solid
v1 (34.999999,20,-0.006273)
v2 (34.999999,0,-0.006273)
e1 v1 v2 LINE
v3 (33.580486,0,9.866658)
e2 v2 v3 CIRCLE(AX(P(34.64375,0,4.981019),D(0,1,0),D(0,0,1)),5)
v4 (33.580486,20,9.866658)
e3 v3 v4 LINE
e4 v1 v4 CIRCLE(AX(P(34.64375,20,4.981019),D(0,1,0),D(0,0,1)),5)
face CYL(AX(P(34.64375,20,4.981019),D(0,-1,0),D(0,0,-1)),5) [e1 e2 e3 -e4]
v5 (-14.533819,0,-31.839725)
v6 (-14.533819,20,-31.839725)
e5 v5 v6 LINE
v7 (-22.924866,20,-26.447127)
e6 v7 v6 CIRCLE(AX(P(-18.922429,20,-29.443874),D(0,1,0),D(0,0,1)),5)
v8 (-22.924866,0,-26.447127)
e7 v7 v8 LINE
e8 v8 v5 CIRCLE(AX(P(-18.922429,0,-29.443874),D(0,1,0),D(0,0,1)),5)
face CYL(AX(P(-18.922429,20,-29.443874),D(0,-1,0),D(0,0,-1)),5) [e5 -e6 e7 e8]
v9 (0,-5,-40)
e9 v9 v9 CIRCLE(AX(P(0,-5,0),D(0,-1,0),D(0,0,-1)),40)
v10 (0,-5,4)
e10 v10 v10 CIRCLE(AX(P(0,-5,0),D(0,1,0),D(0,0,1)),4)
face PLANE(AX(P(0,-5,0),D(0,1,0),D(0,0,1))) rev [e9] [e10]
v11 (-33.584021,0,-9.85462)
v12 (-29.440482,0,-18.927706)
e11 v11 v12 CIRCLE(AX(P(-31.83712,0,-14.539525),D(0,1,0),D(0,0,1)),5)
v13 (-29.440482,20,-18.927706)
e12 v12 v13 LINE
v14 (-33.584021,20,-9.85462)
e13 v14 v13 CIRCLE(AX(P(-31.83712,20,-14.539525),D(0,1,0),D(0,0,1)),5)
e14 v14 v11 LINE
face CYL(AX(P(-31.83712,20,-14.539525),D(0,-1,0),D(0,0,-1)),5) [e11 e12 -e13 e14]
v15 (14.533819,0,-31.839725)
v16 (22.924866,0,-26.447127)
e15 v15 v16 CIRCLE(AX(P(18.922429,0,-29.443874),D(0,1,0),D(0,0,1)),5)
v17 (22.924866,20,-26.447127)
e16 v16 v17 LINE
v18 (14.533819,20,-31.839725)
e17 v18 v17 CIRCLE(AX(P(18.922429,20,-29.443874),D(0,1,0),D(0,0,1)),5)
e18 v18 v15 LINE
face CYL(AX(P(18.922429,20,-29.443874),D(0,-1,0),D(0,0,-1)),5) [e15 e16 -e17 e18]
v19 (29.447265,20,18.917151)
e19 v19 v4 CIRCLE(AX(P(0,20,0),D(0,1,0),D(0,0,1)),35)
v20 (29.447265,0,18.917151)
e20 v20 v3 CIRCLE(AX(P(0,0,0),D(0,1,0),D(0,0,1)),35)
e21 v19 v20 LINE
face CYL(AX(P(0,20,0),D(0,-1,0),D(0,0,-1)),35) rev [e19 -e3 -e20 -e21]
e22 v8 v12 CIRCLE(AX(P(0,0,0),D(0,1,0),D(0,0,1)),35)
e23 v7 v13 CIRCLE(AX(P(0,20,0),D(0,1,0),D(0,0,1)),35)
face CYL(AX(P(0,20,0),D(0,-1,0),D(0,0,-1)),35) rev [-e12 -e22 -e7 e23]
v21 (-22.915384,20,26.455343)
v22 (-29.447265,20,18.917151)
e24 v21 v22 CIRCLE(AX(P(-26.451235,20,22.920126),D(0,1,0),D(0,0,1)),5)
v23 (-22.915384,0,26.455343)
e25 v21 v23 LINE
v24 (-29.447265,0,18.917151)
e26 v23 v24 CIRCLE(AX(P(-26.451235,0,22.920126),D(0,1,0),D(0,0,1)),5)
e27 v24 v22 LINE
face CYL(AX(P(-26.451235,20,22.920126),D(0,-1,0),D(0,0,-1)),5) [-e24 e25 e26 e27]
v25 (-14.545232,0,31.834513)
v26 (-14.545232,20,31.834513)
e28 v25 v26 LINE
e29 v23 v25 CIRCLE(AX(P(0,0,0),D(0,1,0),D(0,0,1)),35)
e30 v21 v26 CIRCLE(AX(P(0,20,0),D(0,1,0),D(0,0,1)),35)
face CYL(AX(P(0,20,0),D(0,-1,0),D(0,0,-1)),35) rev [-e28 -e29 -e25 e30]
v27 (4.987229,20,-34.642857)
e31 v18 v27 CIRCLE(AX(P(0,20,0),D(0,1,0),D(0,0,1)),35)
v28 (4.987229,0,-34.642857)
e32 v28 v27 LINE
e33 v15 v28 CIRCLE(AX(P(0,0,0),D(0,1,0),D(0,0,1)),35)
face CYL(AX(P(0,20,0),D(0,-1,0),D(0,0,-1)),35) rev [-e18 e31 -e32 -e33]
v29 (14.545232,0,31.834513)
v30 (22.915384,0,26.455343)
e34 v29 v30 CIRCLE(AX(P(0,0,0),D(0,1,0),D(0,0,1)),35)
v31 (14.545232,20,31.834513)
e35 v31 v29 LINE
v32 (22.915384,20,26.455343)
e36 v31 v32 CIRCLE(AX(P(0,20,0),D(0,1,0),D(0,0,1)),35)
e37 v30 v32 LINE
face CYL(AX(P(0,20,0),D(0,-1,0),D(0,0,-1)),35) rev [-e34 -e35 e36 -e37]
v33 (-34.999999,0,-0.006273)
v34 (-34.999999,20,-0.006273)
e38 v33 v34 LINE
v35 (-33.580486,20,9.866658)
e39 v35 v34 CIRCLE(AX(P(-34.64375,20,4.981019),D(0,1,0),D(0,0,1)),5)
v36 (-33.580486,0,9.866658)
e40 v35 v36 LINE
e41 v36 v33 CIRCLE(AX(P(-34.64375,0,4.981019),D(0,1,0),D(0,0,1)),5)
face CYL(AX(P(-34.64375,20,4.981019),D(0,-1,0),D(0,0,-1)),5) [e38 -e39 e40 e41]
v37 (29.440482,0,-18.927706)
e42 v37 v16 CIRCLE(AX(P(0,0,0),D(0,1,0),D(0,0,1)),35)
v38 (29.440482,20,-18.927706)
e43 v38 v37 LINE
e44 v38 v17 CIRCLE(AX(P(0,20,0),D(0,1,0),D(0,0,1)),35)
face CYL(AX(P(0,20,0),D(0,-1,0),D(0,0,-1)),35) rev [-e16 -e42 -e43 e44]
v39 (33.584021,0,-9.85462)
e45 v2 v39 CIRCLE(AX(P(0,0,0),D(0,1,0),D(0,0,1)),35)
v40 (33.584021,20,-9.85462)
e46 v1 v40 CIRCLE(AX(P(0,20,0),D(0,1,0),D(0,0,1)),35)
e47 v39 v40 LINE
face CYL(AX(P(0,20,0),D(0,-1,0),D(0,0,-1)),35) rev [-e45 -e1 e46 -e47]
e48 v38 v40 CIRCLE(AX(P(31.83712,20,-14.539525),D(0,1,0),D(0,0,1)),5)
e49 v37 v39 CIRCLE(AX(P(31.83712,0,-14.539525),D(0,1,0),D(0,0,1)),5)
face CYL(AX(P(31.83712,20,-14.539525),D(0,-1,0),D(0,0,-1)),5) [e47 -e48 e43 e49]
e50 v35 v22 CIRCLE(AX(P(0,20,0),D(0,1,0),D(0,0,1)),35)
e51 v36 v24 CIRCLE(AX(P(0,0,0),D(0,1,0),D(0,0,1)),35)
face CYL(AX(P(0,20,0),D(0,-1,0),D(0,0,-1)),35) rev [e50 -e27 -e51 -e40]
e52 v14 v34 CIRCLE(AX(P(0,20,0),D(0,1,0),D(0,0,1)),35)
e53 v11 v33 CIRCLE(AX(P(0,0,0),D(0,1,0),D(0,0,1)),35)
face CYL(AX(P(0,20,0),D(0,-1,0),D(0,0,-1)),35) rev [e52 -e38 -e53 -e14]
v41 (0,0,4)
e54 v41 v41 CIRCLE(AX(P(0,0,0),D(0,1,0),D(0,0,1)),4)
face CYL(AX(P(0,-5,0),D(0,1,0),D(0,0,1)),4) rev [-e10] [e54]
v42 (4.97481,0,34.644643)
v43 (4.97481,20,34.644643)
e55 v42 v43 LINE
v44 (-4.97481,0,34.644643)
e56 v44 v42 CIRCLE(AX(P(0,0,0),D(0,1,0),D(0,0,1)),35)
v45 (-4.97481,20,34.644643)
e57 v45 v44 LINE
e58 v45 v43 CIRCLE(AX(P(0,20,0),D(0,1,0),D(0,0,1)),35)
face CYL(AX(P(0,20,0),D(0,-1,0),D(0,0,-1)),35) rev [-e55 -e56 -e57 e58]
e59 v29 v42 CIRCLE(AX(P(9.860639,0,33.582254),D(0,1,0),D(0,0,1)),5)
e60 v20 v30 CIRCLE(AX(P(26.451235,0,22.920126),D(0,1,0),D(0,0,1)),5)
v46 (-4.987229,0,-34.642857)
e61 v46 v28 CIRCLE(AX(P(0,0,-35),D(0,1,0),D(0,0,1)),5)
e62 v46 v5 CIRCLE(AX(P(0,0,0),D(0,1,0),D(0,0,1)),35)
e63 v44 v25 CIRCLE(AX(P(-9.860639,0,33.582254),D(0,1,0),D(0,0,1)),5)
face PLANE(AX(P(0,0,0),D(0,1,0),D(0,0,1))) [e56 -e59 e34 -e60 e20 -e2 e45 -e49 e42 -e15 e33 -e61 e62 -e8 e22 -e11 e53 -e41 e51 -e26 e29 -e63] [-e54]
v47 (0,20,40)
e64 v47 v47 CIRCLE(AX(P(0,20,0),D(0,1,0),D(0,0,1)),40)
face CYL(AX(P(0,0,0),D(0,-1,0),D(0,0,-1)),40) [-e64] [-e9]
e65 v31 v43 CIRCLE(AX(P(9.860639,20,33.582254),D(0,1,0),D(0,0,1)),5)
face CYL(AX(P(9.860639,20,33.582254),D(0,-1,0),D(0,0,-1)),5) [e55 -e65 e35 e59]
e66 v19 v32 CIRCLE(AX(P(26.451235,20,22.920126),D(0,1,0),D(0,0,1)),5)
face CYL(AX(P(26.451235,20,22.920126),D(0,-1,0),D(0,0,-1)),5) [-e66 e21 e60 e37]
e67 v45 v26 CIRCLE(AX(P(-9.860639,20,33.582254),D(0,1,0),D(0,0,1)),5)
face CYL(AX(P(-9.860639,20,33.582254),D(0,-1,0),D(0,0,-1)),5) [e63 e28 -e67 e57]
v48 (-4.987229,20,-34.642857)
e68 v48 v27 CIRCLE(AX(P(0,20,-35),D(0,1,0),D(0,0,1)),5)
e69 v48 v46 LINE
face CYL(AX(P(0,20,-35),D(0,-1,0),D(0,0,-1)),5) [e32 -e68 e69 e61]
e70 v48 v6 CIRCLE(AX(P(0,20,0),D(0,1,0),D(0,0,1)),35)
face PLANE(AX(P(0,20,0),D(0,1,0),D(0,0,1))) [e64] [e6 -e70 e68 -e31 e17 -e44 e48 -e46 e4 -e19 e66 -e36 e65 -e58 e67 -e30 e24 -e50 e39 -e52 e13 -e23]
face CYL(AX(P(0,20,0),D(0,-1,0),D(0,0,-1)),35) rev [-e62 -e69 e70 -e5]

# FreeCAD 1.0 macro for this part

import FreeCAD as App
import Part
import Sketcher
Q = App.Units.Quantity

doc = App.newDocument("Part")
body = doc.addObject("PartDesign::Body", "Body")

# Sketch on XZ plane
sketch1 = body.newObject("Sketcher::SketchObject", "Sketch")
sketch1.AttachmentSupport = (doc.getObject("XZ_Plane"), [""])
sketch1.MapMode = "FlatFace"
sketch1.addGeometry(Part.Circle(App.Vector(0, -35, 0), App.Vector(0, 0, 1), 5), False)
sketch1.addConstraint(Sketcher.Constraint("PointOnObject", 0, 3, -2))
sketch1.addConstraint(Sketcher.Constraint("Diameter", 0, Q("10 mm")))
sketch1.addConstraint(Sketcher.Constraint("DistanceY", 0, 3, -1, 1, Q("35 mm")))
pad1 = body.newObject("PartDesign::Pad", "Pad")
pad1.Profile = sketch1
pad1.Length = 20
pad1.Reversed = True
body2 = doc.addObject("PartDesign::Body", "Body001")

# Sketch on XZ plane
sketch2 = body2.newObject("Sketcher::SketchObject", "Sketch001")
sketch2.AttachmentSupport = (doc.getObject("XZ_Plane001"), [""])
sketch2.MapMode = "FlatFace"
sketch2.addGeometry(Part.Circle(App.Vector(19, -29, 0), App.Vector(0, 0, 1), 5), False)
sketch2.addConstraint(Sketcher.Constraint("Diameter", 0, Q("10 mm")))
sketch2.addConstraint(Sketcher.Constraint("DistanceX", -1, 1, 0, 3, Q("18.922429 mm")))
sketch2.addConstraint(Sketcher.Constraint("DistanceY", 0, 3, -1, 1, Q("29.443874 mm")))
pad2 = body2.newObject("PartDesign::Pad", "Pad001")
pad2.Profile = sketch2
pad2.Length = 20
pad2.Reversed = True
body3 = doc.addObject("PartDesign::Body", "Body002")

# Sketch on XZ plane
sketch3 = body3.newObject("Sketcher::SketchObject", "Sketch002")
sketch3.AttachmentSupport = (doc.getObject("XZ_Plane002"), [""])
sketch3.MapMode = "FlatFace"
sketch3.addGeometry(Part.Circle(App.Vector(32, -15, 0), App.Vector(0, 0, 1), 5), False)
sketch3.addConstraint(Sketcher.Constraint("Diameter", 0, Q("10 mm")))
sketch3.addConstraint(Sketcher.Constraint("DistanceX", -1, 1, 0, 3, Q("31.83712 mm")))
sketch3.addConstraint(Sketcher.Constraint("DistanceY", 0, 3, -1, 1, Q("14.539525 mm")))
pad3 = body3.newObject("PartDesign::Pad", "Pad002")
pad3.Profile = sketch3
pad3.Length = 20
pad3.Reversed = True
body4 = doc.addObject("PartDesign::Body", "Body003")

# Sketch on XZ plane
sketch4 = body4.newObject("Sketcher::SketchObject", "Sketch003")
sketch4.AttachmentSupport = (doc.getObject("XZ_Plane003"), [""])
sketch4.MapMode = "FlatFace"
sketch4.addGeometry(Part.Circle(App.Vector(35, 5, 0), App.Vector(0, 0, 1), 5), False)
sketch4.addConstraint(Sketcher.Constraint("Diameter", 0, Q("10 mm")))
sketch4.addConstraint(Sketcher.Constraint("DistanceX", -1, 1, 0, 3, Q("34.64375 mm")))
sketch4.addConstraint(Sketcher.Constraint("DistanceY", -1, 1, 0, 3, Q("4.981019 mm")))
pad4 = body4.newObject("PartDesign::Pad", "Pad003")
pad4.Profile = sketch4
pad4.Length = 20
pad4.Reversed = True
body5 = doc.addObject("PartDesign::Body", "Body004")

# Sketch on XZ plane
sketch5 = body5.newObject("Sketcher::SketchObject", "Sketch004")
sketch5.AttachmentSupport = (doc.getObject("XZ_Plane004"), [""])
sketch5.MapMode = "FlatFace"
sketch5.addGeometry(Part.Circle(App.Vector(26, 23, 0), App.Vector(0, 0, 1), 5), False)
sketch5.addConstraint(Sketcher.Constraint("Diameter", 0, Q("10 mm")))
sketch5.addConstraint(Sketcher.Constraint("DistanceX", -1, 1, 0, 3, Q("26.451235 mm")))
sketch5.addConstraint(Sketcher.Constraint("DistanceY", -1, 1, 0, 3, Q("22.920126 mm")))
pad5 = body5.newObject("PartDesign::Pad", "Pad004")
pad5.Profile = sketch5
pad5.Length = 20
pad5.Reversed = True
body6 = doc.addObject("PartDesign::Body", "Body005")

# Sketch on XZ plane
sketch6 = body6.newObject("Sketcher::SketchObject", "Sketch005")
sketch6.AttachmentSupport = (doc.getObject("XZ_Plane005"), [""])
sketch6.MapMode = "FlatFace"
sketch6.addGeometry(Part.Circle(App.Vector(10, 34, 0), App.Vector(0, 0, 1), 5), False)
sketch6.addConstraint(Sketcher.Constraint("Diameter", 0, Q("10 mm")))
sketch6.addConstraint(Sketcher.Constraint("DistanceX", -1, 1, 0, 3, Q("9.860639 mm")))
sketch6.addConstraint(Sketcher.Constraint("DistanceY", -1, 1, 0, 3, Q("33.582254 mm")))
pad6 = body6.newObject("PartDesign::Pad", "Pad005")
pad6.Profile = sketch6
pad6.Length = 20
pad6.Reversed = True
body7 = doc.addObject("PartDesign::Body", "Body006")

# Sketch on XZ plane
sketch7 = body7.newObject("Sketcher::SketchObject", "Sketch006")
sketch7.AttachmentSupport = (doc.getObject("XZ_Plane006"), [""])
sketch7.MapMode = "FlatFace"
sketch7.addGeometry(Part.Circle(App.Vector(-10, 34, 0), App.Vector(0, 0, 1), 5), False)
sketch7.addConstraint(Sketcher.Constraint("Diameter", 0, Q("10 mm")))
sketch7.addConstraint(Sketcher.Constraint("DistanceX", 0, 3, -1, 1, Q("9.860639 mm")))
sketch7.addConstraint(Sketcher.Constraint("DistanceY", -1, 1, 0, 3, Q("33.582254 mm")))
pad7 = body7.newObject("PartDesign::Pad", "Pad006")
pad7.Profile = sketch7
pad7.Length = 20
pad7.Reversed = True
body8 = doc.addObject("PartDesign::Body", "Body007")

# Sketch on XZ plane
sketch8 = body8.newObject("Sketcher::SketchObject", "Sketch007")
sketch8.AttachmentSupport = (doc.getObject("XZ_Plane007"), [""])
sketch8.MapMode = "FlatFace"
sketch8.addGeometry(Part.Circle(App.Vector(-26, 23, 0), App.Vector(0, 0, 1), 5), False)
sketch8.addConstraint(Sketcher.Constraint("Diameter", 0, Q("10 mm")))
sketch8.addConstraint(Sketcher.Constraint("DistanceX", 0, 3, -1, 1, Q("26.451235 mm")))
sketch8.addConstraint(Sketcher.Constraint("DistanceY", -1, 1, 0, 3, Q("22.920126 mm")))
pad8 = body8.newObject("PartDesign::Pad", "Pad007")
pad8.Profile = sketch8
pad8.Length = 20
pad8.Reversed = True
body9 = doc.addObject("PartDesign::Body", "Body008")

# Sketch on XZ plane
sketch9 = body9.newObject("Sketcher::SketchObject", "Sketch008")
sketch9.AttachmentSupport = (doc.getObject("XZ_Plane008"), [""])
sketch9.MapMode = "FlatFace"
sketch9.addGeometry(Part.Circle(App.Vector(-35, 5, 0), App.Vector(0, 0, 1), 5), False)
sketch9.addConstraint(Sketcher.Constraint("Diameter", 0, Q("10 mm")))
sketch9.addConstraint(Sketcher.Constraint("DistanceX", 0, 3, -1, 1, Q("34.64375 mm")))
sketch9.addConstraint(Sketcher.Constraint("DistanceY", -1, 1, 0, 3, Q("4.981019 mm")))
pad9 = body9.newObject("PartDesign::Pad", "Pad008")
pad9.Profile = sketch9
pad9.Length = 20
pad9.Reversed = True
body10 = doc.addObject("PartDesign::Body", "Body009")

# Sketch on XZ plane
sketch10 = body10.newObject("Sketcher::SketchObject", "Sketch009")
sketch10.AttachmentSupport = (doc.getObject("XZ_Plane009"), [""])
sketch10.MapMode = "FlatFace"
sketch10.addGeometry(Part.Circle(App.Vector(-32, -15, 0), App.Vector(0, 0, 1), 5), False)
sketch10.addConstraint(Sketcher.Constraint("Diameter", 0, Q("10 mm")))
sketch10.addConstraint(Sketcher.Constraint("DistanceX", 0, 3, -1, 1, Q("31.83712 mm")))
sketch10.addConstraint(Sketcher.Constraint("DistanceY", 0, 3, -1, 1, Q("14.539525 mm")))
pad10 = body10.newObject("PartDesign::Pad", "Pad009")
pad10.Profile = sketch10
pad10.Length = 20
pad10.Reversed = True
body11 = doc.addObject("PartDesign::Body", "Body010")

# Sketch on XZ plane
sketch11 = body11.newObject("Sketcher::SketchObject", "Sketch010")
sketch11.AttachmentSupport = (doc.getObject("XZ_Plane010"), [""])
sketch11.MapMode = "FlatFace"
sketch11.addGeometry(Part.Circle(App.Vector(-19, -29, 0), App.Vector(0, 0, 1), 5), False)
sketch11.addConstraint(Sketcher.Constraint("Diameter", 0, Q("10 mm")))
sketch11.addConstraint(Sketcher.Constraint("DistanceX", 0, 3, -1, 1, Q("18.922429 mm")))
sketch11.addConstraint(Sketcher.Constraint("DistanceY", 0, 3, -1, 1, Q("29.443874 mm")))
pad11 = body11.newObject("PartDesign::Pad", "Pad010")
pad11.Profile = sketch11
pad11.Length = 20
pad11.Reversed = True
body.AllowCompound = True
doc.recompute()

boolean = body.newObject("PartDesign::Boolean", "Boolean")
boolean.Type = "Fuse"
boolean.addObjects([body2])
doc.recompute()

boolean2 = body.newObject("PartDesign::Boolean", "Boolean001")
boolean2.Type = "Fuse"
boolean2.addObjects([body3])
doc.recompute()

boolean3 = body.newObject("PartDesign::Boolean", "Boolean002")
boolean3.Type = "Fuse"
boolean3.addObjects([body4])
doc.recompute()

boolean4 = body.newObject("PartDesign::Boolean", "Boolean003")
boolean4.Type = "Fuse"
boolean4.addObjects([body5])
doc.recompute()

boolean5 = body.newObject("PartDesign::Boolean", "Boolean004")
boolean5.Type = "Fuse"
boolean5.addObjects([body6])
doc.recompute()

boolean6 = body.newObject("PartDesign::Boolean", "Boolean005")
boolean6.Type = "Fuse"
boolean6.addObjects([body7])
doc.recompute()

boolean7 = body.newObject("PartDesign::Boolean", "Boolean006")
boolean7.Type = "Fuse"
boolean7.addObjects([body8])
doc.recompute()

boolean8 = body.newObject("PartDesign::Boolean", "Boolean007")
boolean8.Type = "Fuse"
boolean8.addObjects([body9])
doc.recompute()

boolean9 = body.newObject("PartDesign::Boolean", "Boolean008")
boolean9.Type = "Fuse"
boolean9.addObjects([body10])
doc.recompute()

boolean10 = body.newObject("PartDesign::Boolean", "Boolean009")
boolean10.Type = "Fuse"
boolean10.addObjects([body11])

# Sketch on XZ plane
sketch12 = body.newObject("Sketcher::SketchObject", "Sketch011")
sketch12.AttachmentSupport = (doc.getObject("XZ_Plane"), [""])
sketch12.MapMode = "FlatFace"
sketch12.addGeometry(Part.Circle(App.Vector(0, 0, 0), App.Vector(0, 0, 1), 35), False)
sketch12.addGeometry(Part.Circle(App.Vector(0, 0, 0), App.Vector(0, 0, 1), 4), False)
sketch12.addConstraint(Sketcher.Constraint("Coincident", 0, 3, -1, 1))
sketch12.addConstraint(Sketcher.Constraint("Coincident", 1, 3, -1, 1))
sketch12.addConstraint(Sketcher.Constraint("Diameter", 0, Q("70 mm")))
sketch12.addConstraint(Sketcher.Constraint("Diameter", 1, Q("8 mm")))
pad12 = body.newObject("PartDesign::Pad", "Pad011")
pad12.Profile = sketch12
pad12.Length = 5

# Sketch on XZ plane
sketch13 = body.newObject("Sketcher::SketchObject", "Sketch012")
sketch13.AttachmentSupport = (doc.getObject("XZ_Plane"), [""])
sketch13.MapMode = "FlatFace"
sketch13.AttachmentOffset = App.Placement(App.Vector(0, 0, -20), App.Rotation())
sketch13.addGeometry(Part.LineSegment(App.Vector(-1.1, -36.9, 0), App.Vector(-0.2, -36.9, 0)), False)
sketch13.addGeometry(Part.LineSegment(App.Vector(-0.2, -36.9, 0), App.Vector(-0.2, -35, 0)), False)
sketch13.addGeometry(Part.LineSegment(App.Vector(-0.2, -35, 0), App.Vector(0.2, -35, 0)), False)
sketch13.addGeometry(Part.LineSegment(App.Vector(0.2, -35, 0), App.Vector(0.2, -36.9, 0)), False)
sketch13.addGeometry(Part.LineSegment(App.Vector(0.2, -36.9, 0), App.Vector(1.1, -36.9, 0)), False)
sketch13.addGeometry(Part.LineSegment(App.Vector(1.1, -36.9, 0), App.Vector(0, -38, 0)), False)
sketch13.addGeometry(Part.LineSegment(App.Vector(0, -38, 0), App.Vector(-1.1, -36.9, 0)), False)
sketch13.addConstraint(Sketcher.Constraint("Coincident", 0, 2, 1, 1))
sketch13.addConstraint(Sketcher.Constraint("Coincident", 1, 2, 2, 1))
sketch13.addConstraint(Sketcher.Constraint("Coincident", 2, 2, 3, 1))
sketch13.addConstraint(Sketcher.Constraint("Coincident", 3, 2, 4, 1))
sketch13.addConstraint(Sketcher.Constraint("Coincident", 4, 2, 5, 1))
sketch13.addConstraint(Sketcher.Constraint("Coincident", 5, 2, 6, 1))
sketch13.addConstraint(Sketcher.Constraint("Coincident", 6, 2, 0, 1))
sketch13.addConstraint(Sketcher.Constraint("Horizontal", 0))
sketch13.addConstraint(Sketcher.Constraint("Vertical", 1))
sketch13.addConstraint(Sketcher.Constraint("Horizontal", 2))
sketch13.addConstraint(Sketcher.Constraint("Vertical", 3))
sketch13.addConstraint(Sketcher.Constraint("Horizontal", 4))
sketch13.addConstraint(Sketcher.Constraint("Symmetric", 0, 2, 3, 2, -2))
sketch13.addConstraint(Sketcher.Constraint("PointOnObject", 5, 2, -2))
sketch13.addConstraint(Sketcher.Constraint("Perpendicular", 5, 6))
sketch13.addConstraint(Sketcher.Constraint("Equal", 0, 4))
sketch13.addConstraint(Sketcher.Constraint("DistanceX", 2, 1, 2, 2, Q("0.5 mm")))
sketch13.addConstraint(Sketcher.Constraint("DistanceY", 1, 2, -1, 1, Q("35 mm")))
sketch13.addConstraint(Sketcher.Constraint("DistanceY", 5, 2, -1, 1, Q("38 mm")))
sketch13.addConstraint(Sketcher.Constraint("Distance", 5, Q("1.5 mm")))
pocket1 = body.newObject("PartDesign::Pocket", "Pocket")
pocket1.Profile = sketch13
pocket1.Length = 0.1
pocket1.Reversed = True

# Sketch on XZ plane
sketch14 = body.newObject("Sketcher::SketchObject", "Sketch013")
sketch14.AttachmentSupport = (doc.getObject("XZ_Plane"), [""])
sketch14.MapMode = "FlatFace"
sketch14.addGeometry(Part.Circle(App.Vector(0, 0, 0), App.Vector(0, 0, 1), 40), False)
sketch14.addGeometry(Part.Circle(App.Vector(0, 0, 0), App.Vector(0, 0, 1), 35), False)
sketch14.addConstraint(Sketcher.Constraint("Coincident", 0, 3, -1, 1))
sketch14.addConstraint(Sketcher.Constraint("Coincident", 1, 3, -1, 1))
sketch14.addConstraint(Sketcher.Constraint("Diameter", 0, Q("80 mm")))
sketch14.addConstraint(Sketcher.Constraint("Diameter", 1, Q("70 mm")))
pad13 = body.newObject("PartDesign::Pad", "Pad012")
pad13.Profile = sketch14
pad13.Length = 5

# Sketch on XZ plane
sketch15 = body.newObject("Sketcher::SketchObject", "Sketch014")
sketch15.AttachmentSupport = (doc.getObject("XZ_Plane"), [""])
sketch15.MapMode = "FlatFace"
sketch15.AttachmentOffset = App.Placement(App.Vector(0, 0, -20), App.Rotation())
sketch15.addGeometry(Part.Circle(App.Vector(0, 0, 0), App.Vector(0, 0, 1), 40), False)
sketch15.addGeometry(Part.Circle(App.Vector(0, 0, 0), App.Vector(0, 0, 1), 35), False)
sketch15.addConstraint(Sketcher.Constraint("Coincident", 0, 3, -1, 1))
sketch15.addConstraint(Sketcher.Constraint("Coincident", 1, 3, -1, 1))
sketch15.addConstraint(Sketcher.Constraint("Diameter", 0, Q("80 mm")))
sketch15.addConstraint(Sketcher.Constraint("Diameter", 1, Q("70 mm")))
pad14 = body.newObject("PartDesign::Pad", "Pad013")
pad14.Profile = sketch15
pad14.Length = 20

doc.recompute()
